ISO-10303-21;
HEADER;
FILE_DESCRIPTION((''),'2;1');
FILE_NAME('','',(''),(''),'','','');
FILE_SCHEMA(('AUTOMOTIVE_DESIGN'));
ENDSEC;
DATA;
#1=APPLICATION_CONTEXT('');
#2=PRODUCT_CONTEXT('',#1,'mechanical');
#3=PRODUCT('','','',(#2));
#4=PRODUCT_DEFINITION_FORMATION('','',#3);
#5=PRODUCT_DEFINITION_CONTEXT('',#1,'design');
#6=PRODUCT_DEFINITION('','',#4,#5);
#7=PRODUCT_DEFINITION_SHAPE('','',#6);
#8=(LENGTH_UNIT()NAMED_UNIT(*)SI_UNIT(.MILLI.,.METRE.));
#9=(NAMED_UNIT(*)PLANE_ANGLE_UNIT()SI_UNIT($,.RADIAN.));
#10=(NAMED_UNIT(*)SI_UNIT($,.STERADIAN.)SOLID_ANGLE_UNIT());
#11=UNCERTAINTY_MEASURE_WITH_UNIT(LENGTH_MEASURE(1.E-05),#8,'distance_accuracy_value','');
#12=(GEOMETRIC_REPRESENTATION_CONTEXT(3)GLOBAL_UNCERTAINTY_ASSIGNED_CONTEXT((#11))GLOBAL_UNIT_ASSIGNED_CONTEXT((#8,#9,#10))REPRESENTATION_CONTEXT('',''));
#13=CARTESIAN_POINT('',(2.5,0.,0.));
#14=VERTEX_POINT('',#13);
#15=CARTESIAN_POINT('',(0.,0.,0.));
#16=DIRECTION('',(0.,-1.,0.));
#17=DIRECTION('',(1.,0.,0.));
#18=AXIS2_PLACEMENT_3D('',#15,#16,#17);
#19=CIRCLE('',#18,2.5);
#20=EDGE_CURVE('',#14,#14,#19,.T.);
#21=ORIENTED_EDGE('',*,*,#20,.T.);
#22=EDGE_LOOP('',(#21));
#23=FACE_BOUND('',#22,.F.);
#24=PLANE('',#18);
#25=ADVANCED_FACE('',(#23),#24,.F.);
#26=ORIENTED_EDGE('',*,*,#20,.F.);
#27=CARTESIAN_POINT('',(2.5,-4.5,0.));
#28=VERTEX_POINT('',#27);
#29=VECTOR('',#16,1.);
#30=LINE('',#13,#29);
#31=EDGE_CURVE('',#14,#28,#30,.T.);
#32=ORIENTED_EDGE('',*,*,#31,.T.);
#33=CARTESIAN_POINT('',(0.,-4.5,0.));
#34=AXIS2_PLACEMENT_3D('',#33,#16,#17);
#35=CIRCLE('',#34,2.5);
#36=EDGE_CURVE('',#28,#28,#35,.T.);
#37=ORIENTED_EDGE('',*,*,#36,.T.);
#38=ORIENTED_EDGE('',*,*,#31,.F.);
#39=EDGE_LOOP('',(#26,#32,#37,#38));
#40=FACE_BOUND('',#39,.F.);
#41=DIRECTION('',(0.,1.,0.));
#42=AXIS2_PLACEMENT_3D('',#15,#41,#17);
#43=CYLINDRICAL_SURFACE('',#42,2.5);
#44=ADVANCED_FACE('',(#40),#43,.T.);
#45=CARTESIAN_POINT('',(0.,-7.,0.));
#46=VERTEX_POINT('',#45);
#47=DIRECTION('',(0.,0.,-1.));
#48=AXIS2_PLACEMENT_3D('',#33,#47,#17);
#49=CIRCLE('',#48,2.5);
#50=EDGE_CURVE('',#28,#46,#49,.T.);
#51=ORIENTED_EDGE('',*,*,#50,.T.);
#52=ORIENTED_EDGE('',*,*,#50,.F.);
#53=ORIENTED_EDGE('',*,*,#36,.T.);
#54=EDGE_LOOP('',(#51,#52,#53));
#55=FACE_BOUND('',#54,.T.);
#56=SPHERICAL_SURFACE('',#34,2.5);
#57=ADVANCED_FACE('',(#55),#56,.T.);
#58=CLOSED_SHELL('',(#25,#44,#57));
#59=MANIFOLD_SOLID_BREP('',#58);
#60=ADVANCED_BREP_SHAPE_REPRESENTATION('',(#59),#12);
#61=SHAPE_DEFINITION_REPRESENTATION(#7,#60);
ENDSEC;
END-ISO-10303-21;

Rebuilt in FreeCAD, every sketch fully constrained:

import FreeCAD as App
import Part
import Sketcher
Q = App.Units.Quantity


def edges_at(feature, points):
    """Names of the edges that pass closest to the given points."""
    edges = feature.Shape.Edges
    near = lambda p: min(range(len(edges)), key=lambda i: edges[i].distToShape(Part.Vertex(*p))[0])
    return sorted({f"Edge{near(p) + 1}" for p in points})

doc = App.newDocument("Part")
body = doc.addObject("PartDesign::Body", "Body")

# Sketch on XZ plane
sketch1 = doc.addObject("Sketcher::SketchObject", "Sketch")
body.addObject(sketch1)
sketch1.AttachmentSupport = (doc.XZ_Plane, [""])
sketch1.MapMode = "FlatFace"
sketch1.addGeometry(Part.Circle(App.Vector(0, 0, 0), App.Vector(0, 0, 1), 2.5), False)
sketch1.addConstraint([
    Sketcher.Constraint("Coincident", 0, 3, -1, 1),
    Sketcher.Constraint("Diameter", 0, Q("5 mm")),
])
pad1 = doc.addObject("PartDesign::Pad", "Pad")
body.addObject(pad1)
pad1.Profile = sketch1
pad1.Length = 7
doc.recompute()

fillet = doc.addObject("PartDesign::Fillet", "Fillet")
body.addObject(fillet)
fillet.Base = (pad1, edges_at(pad1, [(-2.5, -7, 0)]))
fillet.Radius = 2.5

doc.recompute()
